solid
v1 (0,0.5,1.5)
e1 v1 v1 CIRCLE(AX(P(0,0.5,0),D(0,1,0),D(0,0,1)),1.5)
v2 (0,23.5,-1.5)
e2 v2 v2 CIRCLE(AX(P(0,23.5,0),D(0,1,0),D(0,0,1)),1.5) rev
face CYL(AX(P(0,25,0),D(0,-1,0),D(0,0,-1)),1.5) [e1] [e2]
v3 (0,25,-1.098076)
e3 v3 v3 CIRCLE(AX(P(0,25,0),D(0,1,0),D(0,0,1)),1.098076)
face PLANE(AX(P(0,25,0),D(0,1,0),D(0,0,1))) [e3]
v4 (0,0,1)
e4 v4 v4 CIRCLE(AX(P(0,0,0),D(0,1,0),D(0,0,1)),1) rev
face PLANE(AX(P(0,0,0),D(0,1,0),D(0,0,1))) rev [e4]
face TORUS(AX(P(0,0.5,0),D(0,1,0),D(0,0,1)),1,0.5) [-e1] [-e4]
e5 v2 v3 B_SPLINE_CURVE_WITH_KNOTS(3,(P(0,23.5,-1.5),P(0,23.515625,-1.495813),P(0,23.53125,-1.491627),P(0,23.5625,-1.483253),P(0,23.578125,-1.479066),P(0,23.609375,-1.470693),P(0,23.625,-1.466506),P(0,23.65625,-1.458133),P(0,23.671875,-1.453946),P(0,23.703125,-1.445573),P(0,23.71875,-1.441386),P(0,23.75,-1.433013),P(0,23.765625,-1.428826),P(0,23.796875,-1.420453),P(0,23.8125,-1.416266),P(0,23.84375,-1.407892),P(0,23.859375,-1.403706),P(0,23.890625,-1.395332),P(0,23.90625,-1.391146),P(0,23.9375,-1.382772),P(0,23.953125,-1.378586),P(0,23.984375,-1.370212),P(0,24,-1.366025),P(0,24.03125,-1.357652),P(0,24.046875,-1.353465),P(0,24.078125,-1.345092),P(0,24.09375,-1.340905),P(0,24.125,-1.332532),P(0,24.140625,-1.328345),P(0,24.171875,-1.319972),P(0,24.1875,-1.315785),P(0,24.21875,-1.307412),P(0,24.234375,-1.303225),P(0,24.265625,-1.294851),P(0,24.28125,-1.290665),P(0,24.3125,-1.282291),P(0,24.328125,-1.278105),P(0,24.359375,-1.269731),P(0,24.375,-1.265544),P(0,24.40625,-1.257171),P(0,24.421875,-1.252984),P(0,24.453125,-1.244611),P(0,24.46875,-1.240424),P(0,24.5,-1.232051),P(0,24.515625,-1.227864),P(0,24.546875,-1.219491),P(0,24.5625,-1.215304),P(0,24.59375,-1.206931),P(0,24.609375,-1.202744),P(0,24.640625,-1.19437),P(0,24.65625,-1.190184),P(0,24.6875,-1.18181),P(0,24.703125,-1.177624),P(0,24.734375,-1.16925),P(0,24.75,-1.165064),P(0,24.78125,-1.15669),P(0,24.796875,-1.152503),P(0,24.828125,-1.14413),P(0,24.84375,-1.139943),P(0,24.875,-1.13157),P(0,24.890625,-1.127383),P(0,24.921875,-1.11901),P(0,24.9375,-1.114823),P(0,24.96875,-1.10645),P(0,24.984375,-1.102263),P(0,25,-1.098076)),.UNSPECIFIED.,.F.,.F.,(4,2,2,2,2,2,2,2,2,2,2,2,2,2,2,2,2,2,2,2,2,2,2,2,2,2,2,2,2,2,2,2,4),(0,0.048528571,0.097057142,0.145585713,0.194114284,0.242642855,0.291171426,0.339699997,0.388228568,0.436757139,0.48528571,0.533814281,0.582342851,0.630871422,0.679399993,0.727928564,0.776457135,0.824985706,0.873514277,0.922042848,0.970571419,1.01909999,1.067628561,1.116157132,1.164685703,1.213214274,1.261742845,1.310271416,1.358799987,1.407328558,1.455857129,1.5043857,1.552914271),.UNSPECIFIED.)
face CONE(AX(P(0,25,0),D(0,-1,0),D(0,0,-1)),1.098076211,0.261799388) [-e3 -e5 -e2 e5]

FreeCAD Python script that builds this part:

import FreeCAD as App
import Part
import Sketcher
Q = App.Units.Quantity


def edges_at(feature, points):
    """Names of the edges that pass closest to the given points."""
    edges = feature.Shape.Edges
    near = lambda p: min(range(len(edges)), key=lambda i: edges[i].distToShape(Part.Vertex(*p))[0])
    return sorted({f"Edge{near(p) + 1}" for p in points})

doc = App.newDocument("Part")
params = doc.addObject("Spreadsheet::Sheet", "Params")
for row, (alias, value) in enumerate([
    ("sketch1_diameter", "3 mm"),
    ("pad1_length", "25 mm"),
    ("chamfer_size", "1.5 mm"),
    ("chamfer_size2", "0.401924 mm"),
    ("fillet_radius", "0.5 mm"),
], start=1):
    params.set(f"A{row}", alias)
    params.set(f"B{row}", "=" + value)
    params.setAlias(f"B{row}", alias)

body = doc.addObject("PartDesign::Body", "Body")

sketch1 = doc.addObject("Sketcher::SketchObject", "Sketch")
body.addObject(sketch1)
sketch1.AttachmentSupport = (doc.XZ_Plane, [""])
sketch1.MapMode = "FlatFace"
sketch1.addGeometry(Part.Circle(App.Vector(0, 0, 0), App.Vector(0, 0, 1), 1.5), False)
sketch1.addConstraint([
    Sketcher.Constraint("Coincident", 0, 3, -1, 1),
    Sketcher.Constraint("Diameter", 0, Q("3 mm")),
])
sketch1.setExpression("Constraints[1]", "Params.sketch1_diameter")
pad1 = doc.addObject("PartDesign::Pad", "Pad")
body.addObject(pad1)
pad1.Profile = sketch1
pad1.setExpression("Length", "Params.pad1_length")
pad1.Reversed = True
doc.recompute()

chamfer = doc.addObject("PartDesign::Chamfer", "Chamfer")
body.addObject(chamfer)
chamfer.Base = (pad1, edges_at(pad1, [(0, 25, -1.5)]))
chamfer.ChamferType = "Two distances"
chamfer.setExpression("Size", "Params.chamfer_size")
chamfer.setExpression("Size2", "Params.chamfer_size2")
doc.recompute()

fillet = doc.addObject("PartDesign::Fillet", "Fillet")
body.addObject(fillet)
fillet.Base = (chamfer, edges_at(chamfer, [(0, 0, -1.5)]))
fillet.setExpression("Radius", "Params.fillet_radius")

doc.recompute()
